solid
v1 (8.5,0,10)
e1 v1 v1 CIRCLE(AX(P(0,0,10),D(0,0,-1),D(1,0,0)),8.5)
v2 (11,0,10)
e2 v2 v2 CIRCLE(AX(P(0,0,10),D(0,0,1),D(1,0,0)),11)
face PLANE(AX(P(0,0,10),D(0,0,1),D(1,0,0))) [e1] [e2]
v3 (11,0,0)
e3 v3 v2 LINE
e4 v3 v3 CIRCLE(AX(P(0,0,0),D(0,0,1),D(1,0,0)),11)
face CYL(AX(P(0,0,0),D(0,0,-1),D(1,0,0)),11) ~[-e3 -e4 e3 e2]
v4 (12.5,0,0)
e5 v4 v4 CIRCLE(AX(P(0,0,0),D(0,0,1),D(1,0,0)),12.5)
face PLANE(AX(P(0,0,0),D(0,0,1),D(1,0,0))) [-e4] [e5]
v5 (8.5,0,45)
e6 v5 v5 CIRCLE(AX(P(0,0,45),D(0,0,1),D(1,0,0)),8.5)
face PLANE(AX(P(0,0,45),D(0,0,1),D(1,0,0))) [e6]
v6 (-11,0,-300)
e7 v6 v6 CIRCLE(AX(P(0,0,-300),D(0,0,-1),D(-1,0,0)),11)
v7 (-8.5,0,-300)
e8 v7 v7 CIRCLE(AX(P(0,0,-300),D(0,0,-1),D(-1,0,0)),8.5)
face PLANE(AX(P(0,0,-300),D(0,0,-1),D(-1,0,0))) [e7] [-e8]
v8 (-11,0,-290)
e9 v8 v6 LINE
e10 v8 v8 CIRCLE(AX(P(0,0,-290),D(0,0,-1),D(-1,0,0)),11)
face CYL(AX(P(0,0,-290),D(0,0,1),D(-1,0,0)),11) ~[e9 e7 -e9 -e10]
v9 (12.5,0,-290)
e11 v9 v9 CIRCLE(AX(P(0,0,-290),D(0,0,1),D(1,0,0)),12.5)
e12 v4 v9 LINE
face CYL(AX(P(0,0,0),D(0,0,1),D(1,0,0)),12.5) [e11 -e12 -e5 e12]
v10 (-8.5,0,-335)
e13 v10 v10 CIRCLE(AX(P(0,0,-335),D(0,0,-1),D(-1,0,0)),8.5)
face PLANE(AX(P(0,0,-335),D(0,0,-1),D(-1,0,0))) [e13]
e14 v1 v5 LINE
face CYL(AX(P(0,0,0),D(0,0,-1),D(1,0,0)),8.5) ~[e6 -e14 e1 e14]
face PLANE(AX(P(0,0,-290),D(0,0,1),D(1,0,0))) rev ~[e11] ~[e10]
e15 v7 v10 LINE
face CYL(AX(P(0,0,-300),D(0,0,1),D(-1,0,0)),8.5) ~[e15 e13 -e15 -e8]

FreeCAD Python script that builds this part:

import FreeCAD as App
import Part
import Sketcher
from FreeCAD import Vector

doc = App.newDocument("Part")
params = doc.addObject("Spreadsheet::Sheet", "Params")
for row, (alias, value) in enumerate([
    ("sketch1_diameter", "25 mm"),
    ("pad1_length", "290 mm"),
    ("sketch2_diameter", "22 mm"),
    ("pad2_length", "10 mm"),
    ("sketch3_diameter", "17 mm"),
    ("pad3_length", "45 mm"),
    ("sketch4_diameter", "22 mm"),
    ("pad4_length", "10 mm"),
    ("sketch5_diameter", "17 mm"),
    ("pad5_length", "35 mm"),
], start=1):
    params.set(f"A{row}", alias)
    params.set(f"B{row}", "=" + value)
    params.setAlias(f"B{row}", alias)

body = doc.addObject("PartDesign::Body", "Body")

# Sketch on XY plane
sketch1 = doc.addObject("Sketcher::SketchObject", "Sketch")
body.addObject(sketch1)
sketch1.AttachmentSupport = (doc.XY_Plane, [""])
sketch1.MapMode = "FlatFace"
sketch1.addGeometry(Part.Circle(Vector(0, 0, 0), Vector(0, 0, 1), 12), False)
sketch1.addConstraint([
    Sketcher.Constraint("Coincident", 0, 3, -1, 1),
    Sketcher.Constraint("Diameter", 0, 25.0),
])
sketch1.setExpression("Constraints[1]", "Params.sketch1_diameter")
pad1 = doc.addObject("PartDesign::Pad", "Pad")
body.addObject(pad1)
pad1.Profile = sketch1
pad1.setExpression("Length", "Params.pad1_length")
pad1.Reversed = True

# Sketch on XY plane
sketch2 = doc.addObject("Sketcher::SketchObject", "Sketch001")
body.addObject(sketch2)
sketch2.AttachmentSupport = (doc.XY_Plane, [""])
sketch2.MapMode = "FlatFace"
sketch2.addGeometry(Part.Circle(Vector(0, 0, 0), Vector(0, 0, 1), 11), False)
sketch2.addConstraint([
    Sketcher.Constraint("Coincident", 0, 3, -1, 1),
    Sketcher.Constraint("Diameter", 0, 22.0),
])
sketch2.setExpression("Constraints[1]", "Params.sketch2_diameter")
pad2 = doc.addObject("PartDesign::Pad", "Pad001")
body.addObject(pad2)
pad2.Profile = sketch2
pad2.setExpression("Length", "Params.pad2_length")

# Sketch on XY plane
sketch3 = doc.addObject("Sketcher::SketchObject", "Sketch002")
body.addObject(sketch3)
sketch3.AttachmentSupport = (doc.XY_Plane, [""])
sketch3.MapMode = "FlatFace"
sketch3.addGeometry(Part.Circle(Vector(0, 0, 0), Vector(0, 0, 1), 8), False)
sketch3.addConstraint([
    Sketcher.Constraint("Coincident", 0, 3, -1, 1),
    Sketcher.Constraint("Diameter", 0, 17.0),
])
sketch3.setExpression("Constraints[1]", "Params.sketch3_diameter")
pad3 = doc.addObject("PartDesign::Pad", "Pad002")
body.addObject(pad3)
pad3.Profile = sketch3
pad3.setExpression("Length", "Params.pad3_length")

# Sketch on XY plane
sketch4 = doc.addObject("Sketcher::SketchObject", "Sketch003")
body.addObject(sketch4)
sketch4.AttachmentSupport = (doc.XY_Plane, [""])
sketch4.MapMode = "FlatFace"
sketch4.AttachmentOffset = App.Placement(Vector(0, 0, -290), App.Rotation())
sketch4.addGeometry(Part.Circle(Vector(0, 0, 0), Vector(0, 0, 1), 11), False)
sketch4.addConstraint([
    Sketcher.Constraint("Coincident", 0, 3, -1, 1),
    Sketcher.Constraint("Diameter", 0, 22.0),
])
sketch4.setExpression("Constraints[1]", "Params.sketch4_diameter")
pad4 = doc.addObject("PartDesign::Pad", "Pad003")
body.addObject(pad4)
pad4.Profile = sketch4
pad4.setExpression("Length", "Params.pad4_length")
pad4.Reversed = True

# Sketch on XY plane
sketch5 = doc.addObject("Sketcher::SketchObject", "Sketch004")
body.addObject(sketch5)
sketch5.AttachmentSupport = (doc.XY_Plane, [""])
sketch5.MapMode = "FlatFace"
sketch5.AttachmentOffset = App.Placement(Vector(0, 0, -300), App.Rotation())
sketch5.addGeometry(Part.Circle(Vector(0, 0, 0), Vector(0, 0, 1), 8), False)
sketch5.addConstraint([
    Sketcher.Constraint("Coincident", 0, 3, -1, 1),
    Sketcher.Constraint("Diameter", 0, 17.0),
])
sketch5.setExpression("Constraints[1]", "Params.sketch5_diameter")
pad5 = doc.addObject("PartDesign::Pad", "Pad004")
body.addObject(pad5)
pad5.Profile = sketch5
pad5.setExpression("Length", "Params.pad5_length")
pad5.Reversed = True

doc.recompute()
